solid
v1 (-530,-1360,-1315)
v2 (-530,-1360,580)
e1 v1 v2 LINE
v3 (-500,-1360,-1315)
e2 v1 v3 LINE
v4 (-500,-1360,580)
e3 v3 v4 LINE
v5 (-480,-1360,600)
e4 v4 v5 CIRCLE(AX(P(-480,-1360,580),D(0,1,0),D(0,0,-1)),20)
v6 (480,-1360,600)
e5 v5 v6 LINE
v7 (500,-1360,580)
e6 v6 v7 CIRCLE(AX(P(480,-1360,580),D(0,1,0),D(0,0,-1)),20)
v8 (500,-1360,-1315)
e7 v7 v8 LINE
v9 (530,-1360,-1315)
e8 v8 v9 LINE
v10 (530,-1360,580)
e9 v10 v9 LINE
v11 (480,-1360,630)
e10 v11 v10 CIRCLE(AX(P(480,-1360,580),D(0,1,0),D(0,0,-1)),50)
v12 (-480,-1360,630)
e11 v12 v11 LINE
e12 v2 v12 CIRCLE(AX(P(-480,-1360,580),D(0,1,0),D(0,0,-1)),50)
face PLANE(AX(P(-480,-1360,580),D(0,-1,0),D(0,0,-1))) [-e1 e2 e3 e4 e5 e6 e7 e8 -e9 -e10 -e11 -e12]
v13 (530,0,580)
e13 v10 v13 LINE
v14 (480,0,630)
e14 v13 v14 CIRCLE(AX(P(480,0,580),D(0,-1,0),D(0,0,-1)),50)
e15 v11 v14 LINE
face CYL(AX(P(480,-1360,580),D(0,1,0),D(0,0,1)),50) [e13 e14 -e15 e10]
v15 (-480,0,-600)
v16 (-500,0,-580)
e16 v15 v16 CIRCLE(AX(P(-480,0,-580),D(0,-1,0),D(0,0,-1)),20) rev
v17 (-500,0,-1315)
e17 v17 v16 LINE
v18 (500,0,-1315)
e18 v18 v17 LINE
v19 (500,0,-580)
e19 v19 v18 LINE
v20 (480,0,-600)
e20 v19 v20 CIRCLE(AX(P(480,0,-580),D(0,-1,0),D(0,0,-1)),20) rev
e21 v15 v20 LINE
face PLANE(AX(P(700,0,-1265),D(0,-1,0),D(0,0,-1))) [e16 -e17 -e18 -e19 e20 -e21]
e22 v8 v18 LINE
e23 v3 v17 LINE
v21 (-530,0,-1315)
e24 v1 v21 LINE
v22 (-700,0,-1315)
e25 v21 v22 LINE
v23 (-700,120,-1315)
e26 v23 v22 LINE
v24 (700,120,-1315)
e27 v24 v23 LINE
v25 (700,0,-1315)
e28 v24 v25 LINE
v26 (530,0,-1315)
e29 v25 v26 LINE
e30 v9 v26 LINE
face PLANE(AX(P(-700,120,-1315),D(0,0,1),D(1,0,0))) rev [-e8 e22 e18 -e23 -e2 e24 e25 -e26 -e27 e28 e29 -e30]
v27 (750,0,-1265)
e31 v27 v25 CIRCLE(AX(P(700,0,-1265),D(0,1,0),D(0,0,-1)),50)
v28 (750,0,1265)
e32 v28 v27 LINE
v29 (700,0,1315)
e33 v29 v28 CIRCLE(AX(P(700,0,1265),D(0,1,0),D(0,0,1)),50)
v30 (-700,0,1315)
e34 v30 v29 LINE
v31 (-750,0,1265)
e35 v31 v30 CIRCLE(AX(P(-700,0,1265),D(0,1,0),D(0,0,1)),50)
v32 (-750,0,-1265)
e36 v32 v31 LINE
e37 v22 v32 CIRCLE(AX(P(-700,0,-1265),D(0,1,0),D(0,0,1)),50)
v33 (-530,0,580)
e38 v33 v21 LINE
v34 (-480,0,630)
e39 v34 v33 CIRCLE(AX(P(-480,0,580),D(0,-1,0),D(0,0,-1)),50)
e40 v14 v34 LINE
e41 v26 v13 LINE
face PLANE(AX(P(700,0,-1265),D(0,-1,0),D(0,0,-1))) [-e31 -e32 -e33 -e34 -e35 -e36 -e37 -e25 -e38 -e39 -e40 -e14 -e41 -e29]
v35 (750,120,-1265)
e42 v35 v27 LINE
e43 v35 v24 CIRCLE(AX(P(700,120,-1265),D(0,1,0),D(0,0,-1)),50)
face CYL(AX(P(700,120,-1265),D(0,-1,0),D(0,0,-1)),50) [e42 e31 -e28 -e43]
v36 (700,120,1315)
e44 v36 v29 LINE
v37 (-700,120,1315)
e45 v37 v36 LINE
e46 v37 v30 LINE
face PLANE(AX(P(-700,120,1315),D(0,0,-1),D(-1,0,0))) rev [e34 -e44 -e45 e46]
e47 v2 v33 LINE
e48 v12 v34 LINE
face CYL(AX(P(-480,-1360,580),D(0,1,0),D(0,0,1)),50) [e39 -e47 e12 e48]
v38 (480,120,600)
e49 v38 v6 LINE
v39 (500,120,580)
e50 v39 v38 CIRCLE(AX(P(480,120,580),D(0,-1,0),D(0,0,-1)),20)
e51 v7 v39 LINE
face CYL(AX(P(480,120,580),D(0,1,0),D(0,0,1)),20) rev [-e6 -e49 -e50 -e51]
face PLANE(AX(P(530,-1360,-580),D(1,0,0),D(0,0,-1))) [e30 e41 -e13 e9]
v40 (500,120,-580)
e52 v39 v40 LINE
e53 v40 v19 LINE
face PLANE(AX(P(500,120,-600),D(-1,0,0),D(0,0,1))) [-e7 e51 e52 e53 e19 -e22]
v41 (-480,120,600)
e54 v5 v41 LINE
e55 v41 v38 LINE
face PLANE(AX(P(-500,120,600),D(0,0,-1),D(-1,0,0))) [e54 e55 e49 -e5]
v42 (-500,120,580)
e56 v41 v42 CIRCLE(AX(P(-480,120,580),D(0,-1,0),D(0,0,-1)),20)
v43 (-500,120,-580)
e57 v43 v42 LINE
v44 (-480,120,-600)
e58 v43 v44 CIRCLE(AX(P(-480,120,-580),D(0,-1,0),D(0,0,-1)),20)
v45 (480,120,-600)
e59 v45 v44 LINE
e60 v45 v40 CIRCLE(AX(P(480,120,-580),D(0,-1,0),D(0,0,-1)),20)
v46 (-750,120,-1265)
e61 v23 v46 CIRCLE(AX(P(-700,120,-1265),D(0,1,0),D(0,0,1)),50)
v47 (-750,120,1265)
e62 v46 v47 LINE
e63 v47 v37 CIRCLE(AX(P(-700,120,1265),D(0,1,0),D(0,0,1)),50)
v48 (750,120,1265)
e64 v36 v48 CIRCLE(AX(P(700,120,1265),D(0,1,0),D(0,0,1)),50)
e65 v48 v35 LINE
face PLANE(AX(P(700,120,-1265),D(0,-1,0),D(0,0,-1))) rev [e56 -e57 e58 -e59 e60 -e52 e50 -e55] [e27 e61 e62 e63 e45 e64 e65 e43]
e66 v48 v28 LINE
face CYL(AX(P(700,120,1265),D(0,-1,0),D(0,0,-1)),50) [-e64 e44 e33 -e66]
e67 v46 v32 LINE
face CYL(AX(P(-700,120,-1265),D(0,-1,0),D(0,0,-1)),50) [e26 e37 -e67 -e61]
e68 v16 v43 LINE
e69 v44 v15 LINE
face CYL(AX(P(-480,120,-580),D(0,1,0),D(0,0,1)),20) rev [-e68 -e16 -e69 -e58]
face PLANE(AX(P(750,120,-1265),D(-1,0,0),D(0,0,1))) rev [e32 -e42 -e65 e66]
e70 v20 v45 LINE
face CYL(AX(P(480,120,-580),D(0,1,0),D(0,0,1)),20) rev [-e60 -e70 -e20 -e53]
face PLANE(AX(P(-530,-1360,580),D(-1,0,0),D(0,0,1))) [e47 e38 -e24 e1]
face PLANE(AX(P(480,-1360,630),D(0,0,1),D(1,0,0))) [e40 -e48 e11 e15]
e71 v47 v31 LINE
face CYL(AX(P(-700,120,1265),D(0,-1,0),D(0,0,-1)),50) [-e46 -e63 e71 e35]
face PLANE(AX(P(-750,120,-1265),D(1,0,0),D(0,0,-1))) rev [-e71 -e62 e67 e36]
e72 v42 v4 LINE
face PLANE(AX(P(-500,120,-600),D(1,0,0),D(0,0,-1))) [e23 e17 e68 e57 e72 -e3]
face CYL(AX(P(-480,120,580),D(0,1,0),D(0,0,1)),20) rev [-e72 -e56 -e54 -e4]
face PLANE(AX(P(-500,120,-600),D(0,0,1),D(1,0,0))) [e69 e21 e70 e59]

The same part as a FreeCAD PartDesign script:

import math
import FreeCAD as App
import Part
import Sketcher
from FreeCAD import Vector


def edges_at(feature, points):
    """Names of the edges that pass closest to the given points."""
    edges = feature.Shape.Edges
    near = lambda p: min(range(len(edges)), key=lambda i: edges[i].distToShape(Part.Vertex(*p))[0])
    return sorted({f"Edge{near(p) + 1}" for p in points})


def add_polygon(sketch, points):
    """Adds a closed chain of lines whose ends are joined by coincident constraints."""
    first, n = sketch.GeometryCount, len(points)
    for a, b in zip(points, points[1:] + points[:1]):
        sketch.addGeometry(Part.LineSegment(App.Vector(*a, 0), App.Vector(*b, 0)), False)
    for i in range(n):
        sketch.addConstraint(Sketcher.Constraint("Coincident", first + i, 2, first + (i + 1) % n, 1))

doc = App.newDocument("Part")
body = doc.addObject("PartDesign::Body", "Body")

sketch1 = doc.addObject("Sketcher::SketchObject", "Sketch")
body.addObject(sketch1)
sketch1.AttachmentSupport = (doc.XZ_Plane, [""])
sketch1.MapMode = "FlatFace"
sketch1.addGeometry(Part.LineSegment(Vector(700, -1315, 0), Vector(-700, -1315, 0)), False)
sketch1.addGeometry(Part.ArcOfCircle(Part.Circle(Vector(-700, -1265, 0), Vector(0, 0, 1), 50), math.radians(-180), math.radians(-90)), False)
sketch1.addGeometry(Part.LineSegment(Vector(-750, -1265, 0), Vector(-750, 1265, 0)), False)
sketch1.addGeometry(Part.ArcOfCircle(Part.Circle(Vector(-700, 1265, 0), Vector(0, 0, 1), 50), math.radians(90), math.radians(180)), False)
sketch1.addGeometry(Part.LineSegment(Vector(-700, 1315, 0), Vector(700, 1315, 0)), False)
sketch1.addGeometry(Part.ArcOfCircle(Part.Circle(Vector(700, 1265, 0), Vector(0, 0, 1), 50), math.radians(0), math.radians(90)), False)
sketch1.addGeometry(Part.LineSegment(Vector(750, 1265, 0), Vector(750, -1265, 0)), False)
sketch1.addGeometry(Part.ArcOfCircle(Part.Circle(Vector(700, -1265, 0), Vector(0, 0, 1), 50), math.radians(-90), math.radians(0)), False)
add_polygon(sketch1, [(-500, 600), (-500, -600), (500, -600), (500, 600)])
sketch1.addConstraint(Sketcher.Constraint("Tangent", 0, 2, 1, 2))
sketch1.addConstraint(Sketcher.Constraint("Tangent", 1, 1, 2, 1))
sketch1.addConstraint(Sketcher.Constraint("Tangent", 2, 2, 3, 2))
sketch1.addConstraint(Sketcher.Constraint("Tangent", 3, 1, 4, 1))
sketch1.addConstraint(Sketcher.Constraint("Tangent", 4, 2, 5, 2))
sketch1.addConstraint(Sketcher.Constraint("Tangent", 5, 1, 6, 1))
sketch1.addConstraint(Sketcher.Constraint("Tangent", 6, 2, 7, 2))
sketch1.addConstraint(Sketcher.Constraint("Tangent", 7, 1, 0, 1))
sketch1.addConstraint(Sketcher.Constraint("Horizontal", 0))
sketch1.addConstraint(Sketcher.Constraint("Vertical", 2))
sketch1.addConstraint(Sketcher.Constraint("Horizontal", 4))
sketch1.addConstraint(Sketcher.Constraint("Vertical", 6))
sketch1.addConstraint(Sketcher.Constraint("Vertical", 8))
sketch1.addConstraint(Sketcher.Constraint("Horizontal", 9))
sketch1.addConstraint(Sketcher.Constraint("Vertical", 10))
sketch1.addConstraint(Sketcher.Constraint("Horizontal", 11))
sketch1.addConstraint(Sketcher.Constraint("Equal", 1, 3))
sketch1.addConstraint(Sketcher.Constraint("Equal", 3, 5))
sketch1.addConstraint(Sketcher.Constraint("Equal", 5, 7))
sketch1.addConstraint(Sketcher.Constraint("Symmetric", 1, 3, 5, 3, -1, 1))
sketch1.addConstraint(Sketcher.Constraint("Symmetric", 8, 2, 10, 2, -1, 1))
sketch1.addConstraint(Sketcher.Constraint("Radius", 1, 50.0))
sketch1.addConstraint(Sketcher.Constraint("DistanceX", 0, 2, 0, 1, 1400.0))
sketch1.addConstraint(Sketcher.Constraint("DistanceX", 9, 1, 9, 2, 1000.0))
sketch1.addConstraint(Sketcher.Constraint("DistanceY", 2, 1, 2, 2, 2530.0))
sketch1.addConstraint(Sketcher.Constraint("DistanceY", 8, 2, 8, 1, 1200.0))
pad1 = doc.addObject("PartDesign::Pad", "Pad")
body.addObject(pad1)
pad1.Profile = sketch1
pad1.Length = 120
pad1.Reversed = True
doc.recompute()

fillet = doc.addObject("PartDesign::Fillet", "Fillet")
body.addObject(fillet)
fillet.Base = (pad1, edges_at(pad1, [
    (500, 60, 600),
    (500, 60, -600),
    (-500, 60, -600),
    (-500, 60, 600),
]))
fillet.Radius = 20

sketch2 = doc.addObject("Sketcher::SketchObject", "Sketch001")
body.addObject(sketch2)
sketch2.AttachmentSupport = (doc.XZ_Plane, [""])
sketch2.MapMode = "FlatFace"
sketch2.AttachmentOffset = App.Placement(Vector(0, 0, -120), App.Rotation())
sketch2.addGeometry(Part.LineSegment(Vector(-530, -580, 0), Vector(-530, 580, 0)), False)
sketch2.addGeometry(Part.ArcOfCircle(Part.Circle(Vector(-480, 580, 0), Vector(0, 0, 1), 50), math.radians(90), math.radians(180)), False)
sketch2.addGeometry(Part.LineSegment(Vector(-480, 630, 0), Vector(480, 630, 0)), False)
sketch2.addGeometry(Part.ArcOfCircle(Part.Circle(Vector(480, 580, 0), Vector(0, 0, 1), 50), math.radians(0), math.radians(90)), False)
sketch2.addGeometry(Part.LineSegment(Vector(530, 580, 0), Vector(530, -580, 0)), False)
sketch2.addGeometry(Part.ArcOfCircle(Part.Circle(Vector(480, -580, 0), Vector(0, 0, 1), 50), math.radians(-90), math.radians(0)), False)
sketch2.addGeometry(Part.LineSegment(Vector(480, -630, 0), Vector(-480, -630, 0)), False)
sketch2.addGeometry(Part.ArcOfCircle(Part.Circle(Vector(-480, -580, 0), Vector(0, 0, 1), 50), math.radians(-180), math.radians(-90)), False)
sketch2.addGeometry(Part.LineSegment(Vector(-500, 580, 0), Vector(-500, -580, 0)), False)
sketch2.addGeometry(Part.ArcOfCircle(Part.Circle(Vector(-480, -580, 0), Vector(0, 0, 1), 20), math.radians(180), math.radians(270)), False)
sketch2.addGeometry(Part.LineSegment(Vector(-480, -600, 0), Vector(480, -600, 0)), False)
sketch2.addGeometry(Part.ArcOfCircle(Part.Circle(Vector(480, -580, 0), Vector(0, 0, 1), 20), math.radians(-90), math.radians(0)), False)
sketch2.addGeometry(Part.LineSegment(Vector(500, -580, 0), Vector(500, 580, 0)), False)
sketch2.addGeometry(Part.ArcOfCircle(Part.Circle(Vector(480, 580, 0), Vector(0, 0, 1), 20), math.radians(0), math.radians(90)), False)
sketch2.addGeometry(Part.LineSegment(Vector(480, 600, 0), Vector(-480, 600, 0)), False)
sketch2.addGeometry(Part.ArcOfCircle(Part.Circle(Vector(-480, 580, 0), Vector(0, 0, 1), 20), math.radians(90), math.radians(180)), False)
sketch2.addConstraint(Sketcher.Constraint("Tangent", 0, 2, 1, 2))
sketch2.addConstraint(Sketcher.Constraint("Tangent", 1, 1, 2, 1))
sketch2.addConstraint(Sketcher.Constraint("Tangent", 2, 2, 3, 2))
sketch2.addConstraint(Sketcher.Constraint("Tangent", 3, 1, 4, 1))
sketch2.addConstraint(Sketcher.Constraint("Tangent", 4, 2, 5, 2))
sketch2.addConstraint(Sketcher.Constraint("Tangent", 5, 1, 6, 1))
sketch2.addConstraint(Sketcher.Constraint("Tangent", 6, 2, 7, 2))
sketch2.addConstraint(Sketcher.Constraint("Tangent", 7, 1, 0, 1))
sketch2.addConstraint(Sketcher.Constraint("Tangent", 8, 2, 9, 1))
sketch2.addConstraint(Sketcher.Constraint("Tangent", 9, 2, 10, 1))
sketch2.addConstraint(Sketcher.Constraint("Tangent", 10, 2, 11, 1))
sketch2.addConstraint(Sketcher.Constraint("Tangent", 11, 2, 12, 1))
sketch2.addConstraint(Sketcher.Constraint("Tangent", 12, 2, 13, 1))
sketch2.addConstraint(Sketcher.Constraint("Tangent", 13, 2, 14, 1))
sketch2.addConstraint(Sketcher.Constraint("Tangent", 14, 2, 15, 1))
sketch2.addConstraint(Sketcher.Constraint("Tangent", 15, 2, 8, 1))
sketch2.addConstraint(Sketcher.Constraint("Vertical", 0))
sketch2.addConstraint(Sketcher.Constraint("Horizontal", 2))
sketch2.addConstraint(Sketcher.Constraint("Vertical", 4))
sketch2.addConstraint(Sketcher.Constraint("Horizontal", 6))
sketch2.addConstraint(Sketcher.Constraint("Vertical", 8))
sketch2.addConstraint(Sketcher.Constraint("Horizontal", 10))
sketch2.addConstraint(Sketcher.Constraint("Vertical", 12))
sketch2.addConstraint(Sketcher.Constraint("Horizontal", 14))
sketch2.addConstraint(Sketcher.Constraint("Coincident", 9, 3, 7, 3))
sketch2.addConstraint(Sketcher.Constraint("Coincident", 11, 3, 5, 3))
sketch2.addConstraint(Sketcher.Constraint("Coincident", 13, 3, 3, 3))
sketch2.addConstraint(Sketcher.Constraint("Equal", 1, 3))
sketch2.addConstraint(Sketcher.Constraint("Equal", 3, 5))
sketch2.addConstraint(Sketcher.Constraint("Equal", 5, 7))
sketch2.addConstraint(Sketcher.Constraint("Equal", 13, 15))
sketch2.addConstraint(Sketcher.Constraint("Symmetric", 1, 3, 5, 3, -1, 1))
sketch2.addConstraint(Sketcher.Constraint("Radius", 1, 50.0))
sketch2.addConstraint(Sketcher.Constraint("Radius", 9, 20.0))
sketch2.addConstraint(Sketcher.Constraint("DistanceX", 2, 1, 2, 2, 960.0))
sketch2.addConstraint(Sketcher.Constraint("DistanceY", 0, 1, 0, 2, 1160.0))
pad2 = doc.addObject("PartDesign::Pad", "Pad001")
body.addObject(pad2)
pad2.Profile = sketch2
pad2.Length = 1480

sketch3 = doc.addObject("Sketcher::SketchObject", "Sketch002")
body.addObject(sketch3)
sketch3.AttachmentSupport = (doc.XZ_Plane, [""])
sketch3.MapMode = "FlatFace"
add_polygon(sketch3, [(500, -580), (500, -1315), (530, -1315), (530, -580)])
add_polygon(sketch3, [(-530, -580), (-530, -1315), (-500, -1315), (-500, -580)])
sketch3.addConstraint(Sketcher.Constraint("Vertical", 0))
sketch3.addConstraint(Sketcher.Constraint("Horizontal", 1))
sketch3.addConstraint(Sketcher.Constraint("Vertical", 2))
sketch3.addConstraint(Sketcher.Constraint("Horizontal", 3))
sketch3.addConstraint(Sketcher.Constraint("Vertical", 4))
sketch3.addConstraint(Sketcher.Constraint("Horizontal", 5))
sketch3.addConstraint(Sketcher.Constraint("Vertical", 6))
sketch3.addConstraint(Sketcher.Constraint("Horizontal", 7))
sketch3.addConstraint(Sketcher.Constraint("Symmetric", 1, 2, 4, 2, -2))
sketch3.addConstraint(Sketcher.Constraint("Symmetric", 3, 2, 6, 2, -2))
sketch3.addConstraint(Sketcher.Constraint("DistanceX", 1, 1, 1, 2, 30.0))
sketch3.addConstraint(Sketcher.Constraint("DistanceY", 0, 2, 0, 1, 735.0))
sketch3.addConstraint(Sketcher.Constraint("DistanceX", -1, 1, 0, 2, 500.0))
sketch3.addConstraint(Sketcher.Constraint("DistanceY", 0, 2, -1, 1, 1315.0))
pad3 = doc.addObject("PartDesign::Pad", "Pad002")
body.addObject(pad3)
pad3.Profile = sketch3
pad3.Length = 1360

sketch4 = doc.addObject("Sketcher::SketchObject", "Sketch003")
body.addObject(sketch4)
sketch4.AttachmentSupport = (doc.XZ_Plane, [""])
sketch4.MapMode = "FlatFace"
sketch4.AttachmentOffset = App.Placement(Vector(0, 0, 1360), App.Rotation())
add_polygon(sketch4, [(500, -639.785784), (500, -563.731823), (-500, -563.731823), (-500, -639.785784)])
sketch4.addConstraint(Sketcher.Constraint("Vertical", 0))
sketch4.addConstraint(Sketcher.Constraint("Horizontal", 1))
sketch4.addConstraint(Sketcher.Constraint("Vertical", 2))
sketch4.addConstraint(Sketcher.Constraint("Horizontal", 3))
sketch4.addConstraint(Sketcher.Constraint("DistanceX", 1, 2, 1, 1, 1000.0))
sketch4.addConstraint(Sketcher.Constraint("DistanceX", -1, 1, 0, 2, 500.0))
sketch4.addConstraint(Sketcher.Constraint("DistanceY", 0, 1, 0, 2, 76.053961))
sketch4.addConstraint(Sketcher.Constraint("DistanceY", 0, 2, -1, 1, 563.731823))
pocket1 = doc.addObject("PartDesign::Pocket", "Pocket")
body.addObject(pocket1)
pocket1.Profile = sketch4
pocket1.Length = 1360

doc.recompute()
